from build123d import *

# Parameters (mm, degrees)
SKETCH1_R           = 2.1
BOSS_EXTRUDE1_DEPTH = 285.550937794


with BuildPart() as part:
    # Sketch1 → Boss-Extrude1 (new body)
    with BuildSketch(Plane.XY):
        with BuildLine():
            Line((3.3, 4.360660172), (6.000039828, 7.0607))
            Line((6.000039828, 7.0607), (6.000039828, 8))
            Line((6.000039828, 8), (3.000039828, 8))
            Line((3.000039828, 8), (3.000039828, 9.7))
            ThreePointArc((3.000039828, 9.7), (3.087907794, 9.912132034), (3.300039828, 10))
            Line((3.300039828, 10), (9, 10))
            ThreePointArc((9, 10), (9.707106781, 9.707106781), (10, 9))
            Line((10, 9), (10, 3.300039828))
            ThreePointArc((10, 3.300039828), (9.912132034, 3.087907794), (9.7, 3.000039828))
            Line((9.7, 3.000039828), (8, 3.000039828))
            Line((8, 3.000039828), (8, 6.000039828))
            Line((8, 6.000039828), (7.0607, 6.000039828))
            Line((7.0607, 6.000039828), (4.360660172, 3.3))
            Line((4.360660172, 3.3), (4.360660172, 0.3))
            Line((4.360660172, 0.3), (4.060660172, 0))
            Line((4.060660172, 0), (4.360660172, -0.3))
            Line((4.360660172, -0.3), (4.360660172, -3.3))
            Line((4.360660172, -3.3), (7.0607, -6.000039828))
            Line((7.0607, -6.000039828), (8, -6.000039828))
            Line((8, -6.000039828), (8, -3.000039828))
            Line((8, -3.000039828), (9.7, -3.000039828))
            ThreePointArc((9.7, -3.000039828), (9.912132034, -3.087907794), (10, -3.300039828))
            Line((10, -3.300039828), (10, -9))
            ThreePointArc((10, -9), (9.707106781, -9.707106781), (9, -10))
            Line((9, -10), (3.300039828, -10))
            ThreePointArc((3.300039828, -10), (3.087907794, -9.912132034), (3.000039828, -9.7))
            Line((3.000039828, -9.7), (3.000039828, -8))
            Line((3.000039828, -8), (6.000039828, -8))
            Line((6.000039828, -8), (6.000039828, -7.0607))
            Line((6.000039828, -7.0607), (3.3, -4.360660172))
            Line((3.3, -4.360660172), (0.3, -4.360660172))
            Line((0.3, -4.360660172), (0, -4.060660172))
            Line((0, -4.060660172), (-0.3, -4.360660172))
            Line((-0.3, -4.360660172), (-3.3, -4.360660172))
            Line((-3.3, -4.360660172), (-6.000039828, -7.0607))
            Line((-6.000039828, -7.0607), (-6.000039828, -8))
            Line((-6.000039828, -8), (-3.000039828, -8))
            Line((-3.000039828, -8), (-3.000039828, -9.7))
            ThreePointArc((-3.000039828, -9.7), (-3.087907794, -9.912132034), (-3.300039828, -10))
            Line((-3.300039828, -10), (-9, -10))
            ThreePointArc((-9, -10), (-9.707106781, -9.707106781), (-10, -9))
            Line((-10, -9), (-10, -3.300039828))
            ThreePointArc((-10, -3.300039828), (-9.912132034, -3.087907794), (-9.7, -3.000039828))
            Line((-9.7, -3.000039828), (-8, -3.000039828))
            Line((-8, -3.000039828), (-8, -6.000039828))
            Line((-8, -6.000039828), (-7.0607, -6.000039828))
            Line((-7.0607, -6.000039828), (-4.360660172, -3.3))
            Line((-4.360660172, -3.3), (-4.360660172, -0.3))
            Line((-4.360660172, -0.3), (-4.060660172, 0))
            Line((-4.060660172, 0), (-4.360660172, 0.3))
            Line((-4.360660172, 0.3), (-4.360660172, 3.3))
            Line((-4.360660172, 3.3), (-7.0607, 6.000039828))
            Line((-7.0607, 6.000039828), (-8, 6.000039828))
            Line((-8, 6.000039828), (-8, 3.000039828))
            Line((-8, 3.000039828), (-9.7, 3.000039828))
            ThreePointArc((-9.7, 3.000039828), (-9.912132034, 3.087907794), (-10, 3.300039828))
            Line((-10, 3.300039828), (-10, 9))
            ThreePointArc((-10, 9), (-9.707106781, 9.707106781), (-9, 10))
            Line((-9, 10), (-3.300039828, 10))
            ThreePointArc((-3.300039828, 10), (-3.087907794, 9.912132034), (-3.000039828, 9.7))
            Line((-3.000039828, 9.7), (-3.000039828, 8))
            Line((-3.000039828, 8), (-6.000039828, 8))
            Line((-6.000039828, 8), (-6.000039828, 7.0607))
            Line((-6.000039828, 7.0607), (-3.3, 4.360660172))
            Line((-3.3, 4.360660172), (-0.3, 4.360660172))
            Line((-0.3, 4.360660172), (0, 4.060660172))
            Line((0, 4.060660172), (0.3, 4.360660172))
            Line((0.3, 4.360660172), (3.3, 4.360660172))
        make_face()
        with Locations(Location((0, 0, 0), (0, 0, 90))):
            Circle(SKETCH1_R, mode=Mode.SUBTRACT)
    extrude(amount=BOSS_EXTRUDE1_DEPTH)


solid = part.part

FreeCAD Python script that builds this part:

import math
import FreeCAD as App
import Part
import Sketcher

V = App.Vector

doc = App.newDocument("Part")
params = doc.addObject("Spreadsheet::Sheet", "Params")
for row, (alias, value) in enumerate([
    ("sketch1_radius", "1 mm"),
    ("sketch1_diameter", "4.2 mm"),
    ("sketch1_radius2", "0.3 mm"),
    ("sketch1_width", "3 mm"),
    ("sketch1_width2", "1.7 mm"),
    ("pad1_length", "285.550938 mm"),
], start=1):
    params.set(f"A{row}", alias)
    params.set(f"B{row}", "=" + value)
    params.setAlias(f"B{row}", alias)

body = doc.addObject("PartDesign::Body", "Body")

sketch1 = body.newObject("Sketcher::SketchObject", "Sketch")
sketch1.AttachmentSupport = (doc.getObject("XY_Plane"), [""])
sketch1.MapMode = "FlatFace"
sketch1.addGeometry(Part.LineSegment(V(6, 7.06, 0), V(3.3, 4.36, 0)), False)
sketch1.addGeometry(Part.LineSegment(V(3.3, 4.36, 0), V(0.3, 4.36, 0)), False)
sketch1.addGeometry(Part.LineSegment(V(0.3, 4.36, 0), V(0, 4.06, 0)), False)
sketch1.addGeometry(Part.LineSegment(V(0, 4.06, 0), V(-0.3, 4.36, 0)), False)
sketch1.addGeometry(Part.LineSegment(V(-0.3, 4.36, 0), V(-3.3, 4.36, 0)), False)
sketch1.addGeometry(Part.LineSegment(V(-3.3, 4.36, 0), V(-6, 7.06, 0)), False)
sketch1.addGeometry(Part.LineSegment(V(-6, 7.06, 0), V(-6, 8, 0)), False)
sketch1.addGeometry(Part.LineSegment(V(-6, 8, 0), V(-3, 8, 0)), False)
sketch1.addGeometry(Part.LineSegment(V(-3, 8, 0), V(-3, 9.7, 0)), False)
sketch1.addGeometry(Part.ArcOfCircle(Part.Circle(V(-3.3, 9.7, 0), V(0, 0, 1), 0.3), math.radians(0), math.radians(90)), False)
sketch1.addGeometry(Part.LineSegment(V(-3.3, 10, 0), V(-9, 10, 0)), False)
sketch1.addGeometry(Part.ArcOfCircle(Part.Circle(V(-9, 9, 0), V(0, 0, 1), 1), math.radians(90), math.radians(180)), False)
sketch1.addGeometry(Part.LineSegment(V(-10, 9, 0), V(-10, 3.3, 0)), False)
sketch1.addGeometry(Part.ArcOfCircle(Part.Circle(V(-9.7, 3.3, 0), V(0, 0, 1), 0.3), math.radians(-180), math.radians(-90)), False)
sketch1.addGeometry(Part.LineSegment(V(-9.7, 3, 0), V(-8, 3, 0)), False)
sketch1.addGeometry(Part.LineSegment(V(-8, 3, 0), V(-8, 6, 0)), False)
sketch1.addGeometry(Part.LineSegment(V(-8, 6, 0), V(-7.06, 6, 0)), False)
sketch1.addGeometry(Part.LineSegment(V(-7.06, 6, 0), V(-4.36, 3.3, 0)), False)
sketch1.addGeometry(Part.LineSegment(V(-4.36, 3.3, 0), V(-4.36, 0.3, 0)), False)
sketch1.addGeometry(Part.LineSegment(V(-4.36, 0.3, 0), V(-4.06, 0, 0)), False)
sketch1.addGeometry(Part.LineSegment(V(-4.06, 0, 0), V(-4.36, -0.3, 0)), False)
sketch1.addGeometry(Part.LineSegment(V(-4.36, -0.3, 0), V(-4.36, -3.3, 0)), False)
sketch1.addGeometry(Part.LineSegment(V(-4.36, -3.3, 0), V(-7.06, -6, 0)), False)
sketch1.addGeometry(Part.LineSegment(V(-7.06, -6, 0), V(-8, -6, 0)), False)
sketch1.addGeometry(Part.LineSegment(V(-8, -6, 0), V(-8, -3, 0)), False)
sketch1.addGeometry(Part.LineSegment(V(-8, -3, 0), V(-9.7, -3, 0)), False)
sketch1.addGeometry(Part.ArcOfCircle(Part.Circle(V(-9.7, -3.3, 0), V(0, 0, 1), 0.3), math.radians(90), math.radians(180)), False)
sketch1.addGeometry(Part.LineSegment(V(-10, -3.3, 0), V(-10, -9, 0)), False)
sketch1.addGeometry(Part.ArcOfCircle(Part.Circle(V(-9, -9, 0), V(0, 0, 1), 1), math.radians(-180), math.radians(-90)), False)
sketch1.addGeometry(Part.LineSegment(V(-9, -10, 0), V(-3.3, -10, 0)), False)
sketch1.addGeometry(Part.ArcOfCircle(Part.Circle(V(-3.3, -9.7, 0), V(0, 0, 1), 0.3), math.radians(-90), math.radians(0)), False)
sketch1.addGeometry(Part.LineSegment(V(-3, -9.7, 0), V(-3, -8, 0)), False)
sketch1.addGeometry(Part.LineSegment(V(-3, -8, 0), V(-6, -8, 0)), False)
sketch1.addGeometry(Part.LineSegment(V(-6, -8, 0), V(-6, -7.06, 0)), False)
sketch1.addGeometry(Part.LineSegment(V(-6, -7.06, 0), V(-3.3, -4.36, 0)), False)
sketch1.addGeometry(Part.LineSegment(V(-3.3, -4.36, 0), V(-0.3, -4.36, 0)), False)
sketch1.addGeometry(Part.LineSegment(V(-0.3, -4.36, 0), V(0, -4.06, 0)), False)
sketch1.addGeometry(Part.LineSegment(V(0, -4.06, 0), V(0.3, -4.36, 0)), False)
sketch1.addGeometry(Part.LineSegment(V(0.3, -4.36, 0), V(3.3, -4.36, 0)), False)
sketch1.addGeometry(Part.LineSegment(V(3.3, -4.36, 0), V(6, -7.06, 0)), False)
sketch1.addGeometry(Part.LineSegment(V(6, -7.06, 0), V(6, -8, 0)), False)
sketch1.addGeometry(Part.LineSegment(V(6, -8, 0), V(3, -8, 0)), False)
sketch1.addGeometry(Part.LineSegment(V(3, -8, 0), V(3, -9.7, 0)), False)
sketch1.addGeometry(Part.ArcOfCircle(Part.Circle(V(3.3, -9.7, 0), V(0, 0, 1), 0.3), math.radians(-180), math.radians(-90)), False)
sketch1.addGeometry(Part.LineSegment(V(3.3, -10, 0), V(9, -10, 0)), False)
sketch1.addGeometry(Part.ArcOfCircle(Part.Circle(V(9, -9, 0), V(0, 0, 1), 1), math.radians(-90), math.radians(0)), False)
sketch1.addGeometry(Part.LineSegment(V(10, -9, 0), V(10, -3.3, 0)), False)
sketch1.addGeometry(Part.ArcOfCircle(Part.Circle(V(9.7, -3.3, 0), V(0, 0, 1), 0.3), math.radians(0), math.radians(90)), False)
sketch1.addGeometry(Part.LineSegment(V(9.7, -3, 0), V(8, -3, 0)), False)
sketch1.addGeometry(Part.LineSegment(V(8, -3, 0), V(8, -6, 0)), False)
sketch1.addGeometry(Part.LineSegment(V(8, -6, 0), V(7.06, -6, 0)), False)
sketch1.addGeometry(Part.LineSegment(V(7.06, -6, 0), V(4.36, -3.3, 0)), False)
sketch1.addGeometry(Part.LineSegment(V(4.36, -3.3, 0), V(4.36, -0.3, 0)), False)
sketch1.addGeometry(Part.LineSegment(V(4.36, -0.3, 0), V(4.06, 0, 0)), False)
sketch1.addGeometry(Part.LineSegment(V(4.06, 0, 0), V(4.36, 0.3, 0)), False)
sketch1.addGeometry(Part.LineSegment(V(4.36, 0.3, 0), V(4.36, 3.3, 0)), False)
sketch1.addGeometry(Part.LineSegment(V(4.36, 3.3, 0), V(7.06, 6, 0)), False)
sketch1.addGeometry(Part.LineSegment(V(7.06, 6, 0), V(8, 6, 0)), False)
sketch1.addGeometry(Part.LineSegment(V(8, 6, 0), V(8, 3, 0)), False)
sketch1.addGeometry(Part.LineSegment(V(8, 3, 0), V(9.7, 3, 0)), False)
sketch1.addGeometry(Part.ArcOfCircle(Part.Circle(V(9.7, 3.3, 0), V(0, 0, 1), 0.3), math.radians(-90), math.radians(0)), False)
sketch1.addGeometry(Part.LineSegment(V(10, 3.3, 0), V(10, 9, 0)), False)
sketch1.addGeometry(Part.ArcOfCircle(Part.Circle(V(9, 9, 0), V(0, 0, 1), 1), math.radians(0), math.radians(90)), False)
sketch1.addGeometry(Part.LineSegment(V(9, 10, 0), V(3.3, 10, 0)), False)
sketch1.addGeometry(Part.ArcOfCircle(Part.Circle(V(3.3, 9.7, 0), V(0, 0, 1), 0.3), math.radians(90), math.radians(180)), False)
sketch1.addGeometry(Part.LineSegment(V(3, 9.7, 0), V(3, 8, 0)), False)
sketch1.addGeometry(Part.LineSegment(V(3, 8, 0), V(6, 8, 0)), False)
sketch1.addGeometry(Part.LineSegment(V(6, 8, 0), V(6, 7.06, 0)), False)
sketch1.addGeometry(Part.Circle(V(0, 0, 0), V(0, 0, 1), 2.1), False)
sketch1.addConstraint(Sketcher.Constraint("Coincident", 0, 2, 1, 1))
sketch1.addConstraint(Sketcher.Constraint("Coincident", 1, 2, 2, 1))
sketch1.addConstraint(Sketcher.Constraint("Coincident", 2, 2, 3, 1))
sketch1.addConstraint(Sketcher.Constraint("Coincident", 3, 2, 4, 1))
sketch1.addConstraint(Sketcher.Constraint("Coincident", 4, 2, 5, 1))
sketch1.addConstraint(Sketcher.Constraint("Coincident", 5, 2, 6, 1))
sketch1.addConstraint(Sketcher.Constraint("Coincident", 6, 2, 7, 1))
sketch1.addConstraint(Sketcher.Constraint("Coincident", 7, 2, 8, 1))
sketch1.addConstraint(Sketcher.Constraint("Tangent", 8, 2, 9, 1))
sketch1.addConstraint(Sketcher.Constraint("Tangent", 9, 2, 10, 1))
sketch1.addConstraint(Sketcher.Constraint("Tangent", 10, 2, 11, 1))
sketch1.addConstraint(Sketcher.Constraint("Tangent", 11, 2, 12, 1))
sketch1.addConstraint(Sketcher.Constraint("Tangent", 12, 2, 13, 1))
sketch1.addConstraint(Sketcher.Constraint("Tangent", 13, 2, 14, 1))
sketch1.addConstraint(Sketcher.Constraint("Coincident", 14, 2, 15, 1))
sketch1.addConstraint(Sketcher.Constraint("Coincident", 15, 2, 16, 1))
sketch1.addConstraint(Sketcher.Constraint("Coincident", 16, 2, 17, 1))
sketch1.addConstraint(Sketcher.Constraint("Coincident", 17, 2, 18, 1))
sketch1.addConstraint(Sketcher.Constraint("Coincident", 18, 2, 19, 1))
sketch1.addConstraint(Sketcher.Constraint("Coincident", 19, 2, 20, 1))
sketch1.addConstraint(Sketcher.Constraint("Coincident", 20, 2, 21, 1))
sketch1.addConstraint(Sketcher.Constraint("Coincident", 21, 2, 22, 1))
sketch1.addConstraint(Sketcher.Constraint("Coincident", 22, 2, 23, 1))
sketch1.addConstraint(Sketcher.Constraint("Coincident", 23, 2, 24, 1))
sketch1.addConstraint(Sketcher.Constraint("Coincident", 24, 2, 25, 1))
sketch1.addConstraint(Sketcher.Constraint("Tangent", 25, 2, 26, 1))
sketch1.addConstraint(Sketcher.Constraint("Tangent", 26, 2, 27, 1))
sketch1.addConstraint(Sketcher.Constraint("Tangent", 27, 2, 28, 1))
sketch1.addConstraint(Sketcher.Constraint("Tangent", 28, 2, 29, 1))
sketch1.addConstraint(Sketcher.Constraint("Tangent", 29, 2, 30, 1))
sketch1.addConstraint(Sketcher.Constraint("Tangent", 30, 2, 31, 1))
sketch1.addConstraint(Sketcher.Constraint("Coincident", 31, 2, 32, 1))
sketch1.addConstraint(Sketcher.Constraint("Coincident", 32, 2, 33, 1))
sketch1.addConstraint(Sketcher.Constraint("Coincident", 33, 2, 34, 1))
sketch1.addConstraint(Sketcher.Constraint("Coincident", 34, 2, 35, 1))
sketch1.addConstraint(Sketcher.Constraint("Coincident", 35, 2, 36, 1))
sketch1.addConstraint(Sketcher.Constraint("Coincident", 36, 2, 37, 1))
sketch1.addConstraint(Sketcher.Constraint("Coincident", 37, 2, 38, 1))
sketch1.addConstraint(Sketcher.Constraint("Coincident", 38, 2, 39, 1))
sketch1.addConstraint(Sketcher.Constraint("Coincident", 39, 2, 40, 1))
sketch1.addConstraint(Sketcher.Constraint("Coincident", 40, 2, 41, 1))
sketch1.addConstraint(Sketcher.Constraint("Coincident", 41, 2, 42, 1))
sketch1.addConstraint(Sketcher.Constraint("Tangent", 42, 2, 43, 1))
sketch1.addConstraint(Sketcher.Constraint("Tangent", 43, 2, 44, 1))
sketch1.addConstraint(Sketcher.Constraint("Tangent", 44, 2, 45, 1))
sketch1.addConstraint(Sketcher.Constraint("Tangent", 45, 2, 46, 1))
sketch1.addConstraint(Sketcher.Constraint("Tangent", 46, 2, 47, 1))
sketch1.addConstraint(Sketcher.Constraint("Tangent", 47, 2, 48, 1))
sketch1.addConstraint(Sketcher.Constraint("Coincident", 48, 2, 49, 1))
sketch1.addConstraint(Sketcher.Constraint("Coincident", 49, 2, 50, 1))
sketch1.addConstraint(Sketcher.Constraint("Coincident", 50, 2, 51, 1))
sketch1.addConstraint(Sketcher.Constraint("Coincident", 51, 2, 52, 1))
sketch1.addConstraint(Sketcher.Constraint("Coincident", 52, 2, 53, 1))
sketch1.addConstraint(Sketcher.Constraint("Coincident", 53, 2, 54, 1))
sketch1.addConstraint(Sketcher.Constraint("Coincident", 54, 2, 55, 1))
sketch1.addConstraint(Sketcher.Constraint("Coincident", 55, 2, 56, 1))
sketch1.addConstraint(Sketcher.Constraint("Coincident", 56, 2, 57, 1))
sketch1.addConstraint(Sketcher.Constraint("Coincident", 57, 2, 58, 1))
sketch1.addConstraint(Sketcher.Constraint("Coincident", 58, 2, 59, 1))
sketch1.addConstraint(Sketcher.Constraint("Tangent", 59, 2, 60, 1))
sketch1.addConstraint(Sketcher.Constraint("Tangent", 60, 2, 61, 1))
sketch1.addConstraint(Sketcher.Constraint("Tangent", 61, 2, 62, 1))
sketch1.addConstraint(Sketcher.Constraint("Tangent", 62, 2, 63, 1))
sketch1.addConstraint(Sketcher.Constraint("Tangent", 63, 2, 64, 1))
sketch1.addConstraint(Sketcher.Constraint("Tangent", 64, 2, 65, 1))
sketch1.addConstraint(Sketcher.Constraint("Coincident", 65, 2, 66, 1))
sketch1.addConstraint(Sketcher.Constraint("Coincident", 66, 2, 67, 1))
sketch1.addConstraint(Sketcher.Constraint("Coincident", 67, 2, 0, 1))
sketch1.addConstraint(Sketcher.Constraint("Horizontal", 1))
sketch1.addConstraint(Sketcher.Constraint("Horizontal", 4))
sketch1.addConstraint(Sketcher.Constraint("Vertical", 6))
sketch1.addConstraint(Sketcher.Constraint("Horizontal", 7))
sketch1.addConstraint(Sketcher.Constraint("Vertical", 8))
sketch1.addConstraint(Sketcher.Constraint("Horizontal", 10))
sketch1.addConstraint(Sketcher.Constraint("Vertical", 12))
sketch1.addConstraint(Sketcher.Constraint("Horizontal", 14))
sketch1.addConstraint(Sketcher.Constraint("Vertical", 15))
sketch1.addConstraint(Sketcher.Constraint("Horizontal", 16))
sketch1.addConstraint(Sketcher.Constraint("Vertical", 18))
sketch1.addConstraint(Sketcher.Constraint("Vertical", 21))
sketch1.addConstraint(Sketcher.Constraint("Horizontal", 23))
sketch1.addConstraint(Sketcher.Constraint("Vertical", 24))
sketch1.addConstraint(Sketcher.Constraint("Horizontal", 25))
sketch1.addConstraint(Sketcher.Constraint("Vertical", 27))
sketch1.addConstraint(Sketcher.Constraint("Horizontal", 29))
sketch1.addConstraint(Sketcher.Constraint("Vertical", 31))
sketch1.addConstraint(Sketcher.Constraint("Horizontal", 32))
sketch1.addConstraint(Sketcher.Constraint("Vertical", 33))
sketch1.addConstraint(Sketcher.Constraint("Horizontal", 35))
sketch1.addConstraint(Sketcher.Constraint("Horizontal", 38))
sketch1.addConstraint(Sketcher.Constraint("Vertical", 40))
sketch1.addConstraint(Sketcher.Constraint("Horizontal", 41))
sketch1.addConstraint(Sketcher.Constraint("Vertical", 42))
sketch1.addConstraint(Sketcher.Constraint("Horizontal", 44))
sketch1.addConstraint(Sketcher.Constraint("Vertical", 46))
sketch1.addConstraint(Sketcher.Constraint("Horizontal", 48))
sketch1.addConstraint(Sketcher.Constraint("Vertical", 49))
sketch1.addConstraint(Sketcher.Constraint("Horizontal", 50))
sketch1.addConstraint(Sketcher.Constraint("Vertical", 52))
sketch1.addConstraint(Sketcher.Constraint("Vertical", 55))
sketch1.addConstraint(Sketcher.Constraint("Horizontal", 57))
sketch1.addConstraint(Sketcher.Constraint("Vertical", 58))
sketch1.addConstraint(Sketcher.Constraint("Horizontal", 59))
sketch1.addConstraint(Sketcher.Constraint("Vertical", 61))
sketch1.addConstraint(Sketcher.Constraint("Horizontal", 63))
sketch1.addConstraint(Sketcher.Constraint("Vertical", 65))
sketch1.addConstraint(Sketcher.Constraint("Horizontal", 66))
sketch1.addConstraint(Sketcher.Constraint("Vertical", 67))
sketch1.addConstraint(Sketcher.Constraint("Coincident", 68, 3, -1, 1))
sketch1.addConstraint(Sketcher.Constraint("Equal", 9, 13))
sketch1.addConstraint(Sketcher.Constraint("Equal", 13, 26))
sketch1.addConstraint(Sketcher.Constraint("Equal", 11, 28))
sketch1.addConstraint(Sketcher.Constraint("Equal", 26, 30))
sketch1.addConstraint(Sketcher.Constraint("Equal", 30, 43))
sketch1.addConstraint(Sketcher.Constraint("Equal", 28, 45))
sketch1.addConstraint(Sketcher.Constraint("Equal", 43, 47))
sketch1.addConstraint(Sketcher.Constraint("Equal", 47, 60))
sketch1.addConstraint(Sketcher.Constraint("Equal", 45, 62))
sketch1.addConstraint(Sketcher.Constraint("Equal", 60, 64))
sketch1.addConstraint(Sketcher.Constraint("Symmetric", 9, 3, 43, 3, -1, 1))
sketch1.addConstraint(Sketcher.Constraint("Symmetric", 13, 3, 47, 3, -1, 1))
sketch1.addConstraint(Sketcher.Constraint("Symmetric", 26, 3, 60, 3, -1, 1))
sketch1.addConstraint(Sketcher.Constraint("Symmetric", 30, 3, 64, 3, -1, 1))
sketch1.addConstraint(Sketcher.Constraint("Symmetric", 0, 2, 34, 2, -1, 1))
sketch1.addConstraint(Sketcher.Constraint("Symmetric", 2, 2, 36, 2, -1, 1))
sketch1.addConstraint(Sketcher.Constraint("Symmetric", 3, 2, 37, 2, -1, 1))
sketch1.addConstraint(Sketcher.Constraint("Symmetric", 5, 2, 39, 2, -1, 1))
sketch1.addConstraint(Sketcher.Constraint("Symmetric", 15, 2, 49, 2, -1, 1))
sketch1.addConstraint(Sketcher.Constraint("Symmetric", 17, 2, 51, 2, -1, 1))
sketch1.addConstraint(Sketcher.Constraint("Symmetric", 19, 2, 53, 2, -1, 1))
sketch1.addConstraint(Sketcher.Constraint("Symmetric", 20, 2, 54, 2, -1, 1))
sketch1.addConstraint(Sketcher.Constraint("Symmetric", 22, 2, 56, 2, -1, 1))
sketch1.addConstraint(Sketcher.Constraint("Symmetric", 32, 2, 66, 2, -1, 1))
sketch1.addConstraint(Sketcher.Constraint("Symmetric", 30, 3, 43, 3, -2))
sketch1.addConstraint(Sketcher.Constraint("Symmetric", 26, 3, 47, 3, -2))
sketch1.addConstraint(Sketcher.Constraint("Symmetric", 1, 2, 3, 2, -2))
sketch1.addConstraint(Sketcher.Constraint("Symmetric", 33, 2, 39, 2, -2))
sketch1.addConstraint(Sketcher.Constraint("Symmetric", 23, 2, 49, 2, -2))
sketch1.addConstraint(Sketcher.Constraint("Symmetric", 21, 2, 51, 2, -2))
sketch1.addConstraint(Sketcher.Constraint("PointOnObject", 2, 2, -2))
sketch1.addConstraint(Sketcher.Constraint("PointOnObject", 19, 2, -1))
sketch1.addConstraint(Sketcher.Constraint("Parallel", 0, 2))
sketch1.addConstraint(Sketcher.Constraint("Perpendicular", 2, 3))
sketch1.addConstraint(Sketcher.Constraint("Parallel", 3, 5))
sketch1.addConstraint(Sketcher.Constraint("Parallel", 5, 17))
sketch1.addConstraint(Sketcher.Constraint("Parallel", 17, 19))
sketch1.addConstraint(Sketcher.Constraint("Perpendicular", 19, 20))
sketch1.addConstraint(Sketcher.Constraint("Parallel", 20, 22))
sketch1.addConstraint(Sketcher.Constraint("Parallel", 22, 34))
sketch1.addConstraint(Sketcher.Constraint("Parallel", 34, 36))
sketch1.addConstraint(Sketcher.Constraint("Parallel", 37, 39))
sketch1.addConstraint(Sketcher.Constraint("Parallel", 39, 51))
sketch1.addConstraint(Sketcher.Constraint("Parallel", 51, 53))
sketch1.addConstraint(Sketcher.Constraint("Parallel", 54, 56))
sketch1.addConstraint(Sketcher.Constraint("Horizontal", 32, 2, 40, 2))
sketch1.addConstraint(Sketcher.Constraint("Horizontal", 7, 2, 65, 2))
sketch1.addConstraint(Sketcher.Constraint("Vertical", 49, 2, 57, 2))
sketch1.addConstraint(Sketcher.Constraint("Equal", 4, 7))
sketch1.addConstraint(Sketcher.Constraint("Equal", 57, 6))
sketch1.addConstraint(Sketcher.Constraint("Equal", 59, 8))
sketch1.addConstraint(Sketcher.Constraint("Equal", 63, 12))
sketch1.addConstraint(Sketcher.Constraint("Equal", 66, 15))
sketch1.addConstraint(Sketcher.Constraint("Equal", 15, 18))
sketch1.addConstraint(Sketcher.Constraint("Equal", 5, 17))
sketch1.addConstraint(Sketcher.Constraint("Equal", 3, 19))
sketch1.addConstraint(Sketcher.Constraint("Radius", 11, 1.0))
sketch1.addConstraint(Sketcher.Constraint("Diameter", 68, 4.2))
sketch1.addConstraint(Sketcher.Constraint("Radius", 9, 0.3))
sketch1.addConstraint(Sketcher.Constraint("DistanceX", 1, 2, 1, 1, 3.0))
sketch1.addConstraint(Sketcher.Constraint("DistanceX", 14, 1, 14, 2, 1.7))
sketch1.addConstraint(Sketcher.Constraint("DistanceX", 11, 3, -1, 1, 9.0))
sketch1.addConstraint(Sketcher.Constraint("DistanceX", -1, 1, 0, 2, 3.3))
sketch1.addConstraint(Sketcher.Constraint("DistanceX", 16, 1, 16, 2, 0.9393))
sketch1.addConstraint(Sketcher.Constraint("DistanceX", 10, 2, 10, 1, 5.69996))
sketch1.setExpression("Constraints[165]", "Params.sketch1_radius")
sketch1.setExpression("Constraints[166]", "Params.sketch1_diameter")
sketch1.setExpression("Constraints[167]", "Params.sketch1_radius2")
sketch1.setExpression("Constraints[168]", "Params.sketch1_width")
sketch1.setExpression("Constraints[169]", "Params.sketch1_width2")
pad1 = body.newObject("PartDesign::Pad", "Pad")
pad1.Profile = sketch1
pad1.setExpression("Length", "Params.pad1_length")

doc.recompute()
